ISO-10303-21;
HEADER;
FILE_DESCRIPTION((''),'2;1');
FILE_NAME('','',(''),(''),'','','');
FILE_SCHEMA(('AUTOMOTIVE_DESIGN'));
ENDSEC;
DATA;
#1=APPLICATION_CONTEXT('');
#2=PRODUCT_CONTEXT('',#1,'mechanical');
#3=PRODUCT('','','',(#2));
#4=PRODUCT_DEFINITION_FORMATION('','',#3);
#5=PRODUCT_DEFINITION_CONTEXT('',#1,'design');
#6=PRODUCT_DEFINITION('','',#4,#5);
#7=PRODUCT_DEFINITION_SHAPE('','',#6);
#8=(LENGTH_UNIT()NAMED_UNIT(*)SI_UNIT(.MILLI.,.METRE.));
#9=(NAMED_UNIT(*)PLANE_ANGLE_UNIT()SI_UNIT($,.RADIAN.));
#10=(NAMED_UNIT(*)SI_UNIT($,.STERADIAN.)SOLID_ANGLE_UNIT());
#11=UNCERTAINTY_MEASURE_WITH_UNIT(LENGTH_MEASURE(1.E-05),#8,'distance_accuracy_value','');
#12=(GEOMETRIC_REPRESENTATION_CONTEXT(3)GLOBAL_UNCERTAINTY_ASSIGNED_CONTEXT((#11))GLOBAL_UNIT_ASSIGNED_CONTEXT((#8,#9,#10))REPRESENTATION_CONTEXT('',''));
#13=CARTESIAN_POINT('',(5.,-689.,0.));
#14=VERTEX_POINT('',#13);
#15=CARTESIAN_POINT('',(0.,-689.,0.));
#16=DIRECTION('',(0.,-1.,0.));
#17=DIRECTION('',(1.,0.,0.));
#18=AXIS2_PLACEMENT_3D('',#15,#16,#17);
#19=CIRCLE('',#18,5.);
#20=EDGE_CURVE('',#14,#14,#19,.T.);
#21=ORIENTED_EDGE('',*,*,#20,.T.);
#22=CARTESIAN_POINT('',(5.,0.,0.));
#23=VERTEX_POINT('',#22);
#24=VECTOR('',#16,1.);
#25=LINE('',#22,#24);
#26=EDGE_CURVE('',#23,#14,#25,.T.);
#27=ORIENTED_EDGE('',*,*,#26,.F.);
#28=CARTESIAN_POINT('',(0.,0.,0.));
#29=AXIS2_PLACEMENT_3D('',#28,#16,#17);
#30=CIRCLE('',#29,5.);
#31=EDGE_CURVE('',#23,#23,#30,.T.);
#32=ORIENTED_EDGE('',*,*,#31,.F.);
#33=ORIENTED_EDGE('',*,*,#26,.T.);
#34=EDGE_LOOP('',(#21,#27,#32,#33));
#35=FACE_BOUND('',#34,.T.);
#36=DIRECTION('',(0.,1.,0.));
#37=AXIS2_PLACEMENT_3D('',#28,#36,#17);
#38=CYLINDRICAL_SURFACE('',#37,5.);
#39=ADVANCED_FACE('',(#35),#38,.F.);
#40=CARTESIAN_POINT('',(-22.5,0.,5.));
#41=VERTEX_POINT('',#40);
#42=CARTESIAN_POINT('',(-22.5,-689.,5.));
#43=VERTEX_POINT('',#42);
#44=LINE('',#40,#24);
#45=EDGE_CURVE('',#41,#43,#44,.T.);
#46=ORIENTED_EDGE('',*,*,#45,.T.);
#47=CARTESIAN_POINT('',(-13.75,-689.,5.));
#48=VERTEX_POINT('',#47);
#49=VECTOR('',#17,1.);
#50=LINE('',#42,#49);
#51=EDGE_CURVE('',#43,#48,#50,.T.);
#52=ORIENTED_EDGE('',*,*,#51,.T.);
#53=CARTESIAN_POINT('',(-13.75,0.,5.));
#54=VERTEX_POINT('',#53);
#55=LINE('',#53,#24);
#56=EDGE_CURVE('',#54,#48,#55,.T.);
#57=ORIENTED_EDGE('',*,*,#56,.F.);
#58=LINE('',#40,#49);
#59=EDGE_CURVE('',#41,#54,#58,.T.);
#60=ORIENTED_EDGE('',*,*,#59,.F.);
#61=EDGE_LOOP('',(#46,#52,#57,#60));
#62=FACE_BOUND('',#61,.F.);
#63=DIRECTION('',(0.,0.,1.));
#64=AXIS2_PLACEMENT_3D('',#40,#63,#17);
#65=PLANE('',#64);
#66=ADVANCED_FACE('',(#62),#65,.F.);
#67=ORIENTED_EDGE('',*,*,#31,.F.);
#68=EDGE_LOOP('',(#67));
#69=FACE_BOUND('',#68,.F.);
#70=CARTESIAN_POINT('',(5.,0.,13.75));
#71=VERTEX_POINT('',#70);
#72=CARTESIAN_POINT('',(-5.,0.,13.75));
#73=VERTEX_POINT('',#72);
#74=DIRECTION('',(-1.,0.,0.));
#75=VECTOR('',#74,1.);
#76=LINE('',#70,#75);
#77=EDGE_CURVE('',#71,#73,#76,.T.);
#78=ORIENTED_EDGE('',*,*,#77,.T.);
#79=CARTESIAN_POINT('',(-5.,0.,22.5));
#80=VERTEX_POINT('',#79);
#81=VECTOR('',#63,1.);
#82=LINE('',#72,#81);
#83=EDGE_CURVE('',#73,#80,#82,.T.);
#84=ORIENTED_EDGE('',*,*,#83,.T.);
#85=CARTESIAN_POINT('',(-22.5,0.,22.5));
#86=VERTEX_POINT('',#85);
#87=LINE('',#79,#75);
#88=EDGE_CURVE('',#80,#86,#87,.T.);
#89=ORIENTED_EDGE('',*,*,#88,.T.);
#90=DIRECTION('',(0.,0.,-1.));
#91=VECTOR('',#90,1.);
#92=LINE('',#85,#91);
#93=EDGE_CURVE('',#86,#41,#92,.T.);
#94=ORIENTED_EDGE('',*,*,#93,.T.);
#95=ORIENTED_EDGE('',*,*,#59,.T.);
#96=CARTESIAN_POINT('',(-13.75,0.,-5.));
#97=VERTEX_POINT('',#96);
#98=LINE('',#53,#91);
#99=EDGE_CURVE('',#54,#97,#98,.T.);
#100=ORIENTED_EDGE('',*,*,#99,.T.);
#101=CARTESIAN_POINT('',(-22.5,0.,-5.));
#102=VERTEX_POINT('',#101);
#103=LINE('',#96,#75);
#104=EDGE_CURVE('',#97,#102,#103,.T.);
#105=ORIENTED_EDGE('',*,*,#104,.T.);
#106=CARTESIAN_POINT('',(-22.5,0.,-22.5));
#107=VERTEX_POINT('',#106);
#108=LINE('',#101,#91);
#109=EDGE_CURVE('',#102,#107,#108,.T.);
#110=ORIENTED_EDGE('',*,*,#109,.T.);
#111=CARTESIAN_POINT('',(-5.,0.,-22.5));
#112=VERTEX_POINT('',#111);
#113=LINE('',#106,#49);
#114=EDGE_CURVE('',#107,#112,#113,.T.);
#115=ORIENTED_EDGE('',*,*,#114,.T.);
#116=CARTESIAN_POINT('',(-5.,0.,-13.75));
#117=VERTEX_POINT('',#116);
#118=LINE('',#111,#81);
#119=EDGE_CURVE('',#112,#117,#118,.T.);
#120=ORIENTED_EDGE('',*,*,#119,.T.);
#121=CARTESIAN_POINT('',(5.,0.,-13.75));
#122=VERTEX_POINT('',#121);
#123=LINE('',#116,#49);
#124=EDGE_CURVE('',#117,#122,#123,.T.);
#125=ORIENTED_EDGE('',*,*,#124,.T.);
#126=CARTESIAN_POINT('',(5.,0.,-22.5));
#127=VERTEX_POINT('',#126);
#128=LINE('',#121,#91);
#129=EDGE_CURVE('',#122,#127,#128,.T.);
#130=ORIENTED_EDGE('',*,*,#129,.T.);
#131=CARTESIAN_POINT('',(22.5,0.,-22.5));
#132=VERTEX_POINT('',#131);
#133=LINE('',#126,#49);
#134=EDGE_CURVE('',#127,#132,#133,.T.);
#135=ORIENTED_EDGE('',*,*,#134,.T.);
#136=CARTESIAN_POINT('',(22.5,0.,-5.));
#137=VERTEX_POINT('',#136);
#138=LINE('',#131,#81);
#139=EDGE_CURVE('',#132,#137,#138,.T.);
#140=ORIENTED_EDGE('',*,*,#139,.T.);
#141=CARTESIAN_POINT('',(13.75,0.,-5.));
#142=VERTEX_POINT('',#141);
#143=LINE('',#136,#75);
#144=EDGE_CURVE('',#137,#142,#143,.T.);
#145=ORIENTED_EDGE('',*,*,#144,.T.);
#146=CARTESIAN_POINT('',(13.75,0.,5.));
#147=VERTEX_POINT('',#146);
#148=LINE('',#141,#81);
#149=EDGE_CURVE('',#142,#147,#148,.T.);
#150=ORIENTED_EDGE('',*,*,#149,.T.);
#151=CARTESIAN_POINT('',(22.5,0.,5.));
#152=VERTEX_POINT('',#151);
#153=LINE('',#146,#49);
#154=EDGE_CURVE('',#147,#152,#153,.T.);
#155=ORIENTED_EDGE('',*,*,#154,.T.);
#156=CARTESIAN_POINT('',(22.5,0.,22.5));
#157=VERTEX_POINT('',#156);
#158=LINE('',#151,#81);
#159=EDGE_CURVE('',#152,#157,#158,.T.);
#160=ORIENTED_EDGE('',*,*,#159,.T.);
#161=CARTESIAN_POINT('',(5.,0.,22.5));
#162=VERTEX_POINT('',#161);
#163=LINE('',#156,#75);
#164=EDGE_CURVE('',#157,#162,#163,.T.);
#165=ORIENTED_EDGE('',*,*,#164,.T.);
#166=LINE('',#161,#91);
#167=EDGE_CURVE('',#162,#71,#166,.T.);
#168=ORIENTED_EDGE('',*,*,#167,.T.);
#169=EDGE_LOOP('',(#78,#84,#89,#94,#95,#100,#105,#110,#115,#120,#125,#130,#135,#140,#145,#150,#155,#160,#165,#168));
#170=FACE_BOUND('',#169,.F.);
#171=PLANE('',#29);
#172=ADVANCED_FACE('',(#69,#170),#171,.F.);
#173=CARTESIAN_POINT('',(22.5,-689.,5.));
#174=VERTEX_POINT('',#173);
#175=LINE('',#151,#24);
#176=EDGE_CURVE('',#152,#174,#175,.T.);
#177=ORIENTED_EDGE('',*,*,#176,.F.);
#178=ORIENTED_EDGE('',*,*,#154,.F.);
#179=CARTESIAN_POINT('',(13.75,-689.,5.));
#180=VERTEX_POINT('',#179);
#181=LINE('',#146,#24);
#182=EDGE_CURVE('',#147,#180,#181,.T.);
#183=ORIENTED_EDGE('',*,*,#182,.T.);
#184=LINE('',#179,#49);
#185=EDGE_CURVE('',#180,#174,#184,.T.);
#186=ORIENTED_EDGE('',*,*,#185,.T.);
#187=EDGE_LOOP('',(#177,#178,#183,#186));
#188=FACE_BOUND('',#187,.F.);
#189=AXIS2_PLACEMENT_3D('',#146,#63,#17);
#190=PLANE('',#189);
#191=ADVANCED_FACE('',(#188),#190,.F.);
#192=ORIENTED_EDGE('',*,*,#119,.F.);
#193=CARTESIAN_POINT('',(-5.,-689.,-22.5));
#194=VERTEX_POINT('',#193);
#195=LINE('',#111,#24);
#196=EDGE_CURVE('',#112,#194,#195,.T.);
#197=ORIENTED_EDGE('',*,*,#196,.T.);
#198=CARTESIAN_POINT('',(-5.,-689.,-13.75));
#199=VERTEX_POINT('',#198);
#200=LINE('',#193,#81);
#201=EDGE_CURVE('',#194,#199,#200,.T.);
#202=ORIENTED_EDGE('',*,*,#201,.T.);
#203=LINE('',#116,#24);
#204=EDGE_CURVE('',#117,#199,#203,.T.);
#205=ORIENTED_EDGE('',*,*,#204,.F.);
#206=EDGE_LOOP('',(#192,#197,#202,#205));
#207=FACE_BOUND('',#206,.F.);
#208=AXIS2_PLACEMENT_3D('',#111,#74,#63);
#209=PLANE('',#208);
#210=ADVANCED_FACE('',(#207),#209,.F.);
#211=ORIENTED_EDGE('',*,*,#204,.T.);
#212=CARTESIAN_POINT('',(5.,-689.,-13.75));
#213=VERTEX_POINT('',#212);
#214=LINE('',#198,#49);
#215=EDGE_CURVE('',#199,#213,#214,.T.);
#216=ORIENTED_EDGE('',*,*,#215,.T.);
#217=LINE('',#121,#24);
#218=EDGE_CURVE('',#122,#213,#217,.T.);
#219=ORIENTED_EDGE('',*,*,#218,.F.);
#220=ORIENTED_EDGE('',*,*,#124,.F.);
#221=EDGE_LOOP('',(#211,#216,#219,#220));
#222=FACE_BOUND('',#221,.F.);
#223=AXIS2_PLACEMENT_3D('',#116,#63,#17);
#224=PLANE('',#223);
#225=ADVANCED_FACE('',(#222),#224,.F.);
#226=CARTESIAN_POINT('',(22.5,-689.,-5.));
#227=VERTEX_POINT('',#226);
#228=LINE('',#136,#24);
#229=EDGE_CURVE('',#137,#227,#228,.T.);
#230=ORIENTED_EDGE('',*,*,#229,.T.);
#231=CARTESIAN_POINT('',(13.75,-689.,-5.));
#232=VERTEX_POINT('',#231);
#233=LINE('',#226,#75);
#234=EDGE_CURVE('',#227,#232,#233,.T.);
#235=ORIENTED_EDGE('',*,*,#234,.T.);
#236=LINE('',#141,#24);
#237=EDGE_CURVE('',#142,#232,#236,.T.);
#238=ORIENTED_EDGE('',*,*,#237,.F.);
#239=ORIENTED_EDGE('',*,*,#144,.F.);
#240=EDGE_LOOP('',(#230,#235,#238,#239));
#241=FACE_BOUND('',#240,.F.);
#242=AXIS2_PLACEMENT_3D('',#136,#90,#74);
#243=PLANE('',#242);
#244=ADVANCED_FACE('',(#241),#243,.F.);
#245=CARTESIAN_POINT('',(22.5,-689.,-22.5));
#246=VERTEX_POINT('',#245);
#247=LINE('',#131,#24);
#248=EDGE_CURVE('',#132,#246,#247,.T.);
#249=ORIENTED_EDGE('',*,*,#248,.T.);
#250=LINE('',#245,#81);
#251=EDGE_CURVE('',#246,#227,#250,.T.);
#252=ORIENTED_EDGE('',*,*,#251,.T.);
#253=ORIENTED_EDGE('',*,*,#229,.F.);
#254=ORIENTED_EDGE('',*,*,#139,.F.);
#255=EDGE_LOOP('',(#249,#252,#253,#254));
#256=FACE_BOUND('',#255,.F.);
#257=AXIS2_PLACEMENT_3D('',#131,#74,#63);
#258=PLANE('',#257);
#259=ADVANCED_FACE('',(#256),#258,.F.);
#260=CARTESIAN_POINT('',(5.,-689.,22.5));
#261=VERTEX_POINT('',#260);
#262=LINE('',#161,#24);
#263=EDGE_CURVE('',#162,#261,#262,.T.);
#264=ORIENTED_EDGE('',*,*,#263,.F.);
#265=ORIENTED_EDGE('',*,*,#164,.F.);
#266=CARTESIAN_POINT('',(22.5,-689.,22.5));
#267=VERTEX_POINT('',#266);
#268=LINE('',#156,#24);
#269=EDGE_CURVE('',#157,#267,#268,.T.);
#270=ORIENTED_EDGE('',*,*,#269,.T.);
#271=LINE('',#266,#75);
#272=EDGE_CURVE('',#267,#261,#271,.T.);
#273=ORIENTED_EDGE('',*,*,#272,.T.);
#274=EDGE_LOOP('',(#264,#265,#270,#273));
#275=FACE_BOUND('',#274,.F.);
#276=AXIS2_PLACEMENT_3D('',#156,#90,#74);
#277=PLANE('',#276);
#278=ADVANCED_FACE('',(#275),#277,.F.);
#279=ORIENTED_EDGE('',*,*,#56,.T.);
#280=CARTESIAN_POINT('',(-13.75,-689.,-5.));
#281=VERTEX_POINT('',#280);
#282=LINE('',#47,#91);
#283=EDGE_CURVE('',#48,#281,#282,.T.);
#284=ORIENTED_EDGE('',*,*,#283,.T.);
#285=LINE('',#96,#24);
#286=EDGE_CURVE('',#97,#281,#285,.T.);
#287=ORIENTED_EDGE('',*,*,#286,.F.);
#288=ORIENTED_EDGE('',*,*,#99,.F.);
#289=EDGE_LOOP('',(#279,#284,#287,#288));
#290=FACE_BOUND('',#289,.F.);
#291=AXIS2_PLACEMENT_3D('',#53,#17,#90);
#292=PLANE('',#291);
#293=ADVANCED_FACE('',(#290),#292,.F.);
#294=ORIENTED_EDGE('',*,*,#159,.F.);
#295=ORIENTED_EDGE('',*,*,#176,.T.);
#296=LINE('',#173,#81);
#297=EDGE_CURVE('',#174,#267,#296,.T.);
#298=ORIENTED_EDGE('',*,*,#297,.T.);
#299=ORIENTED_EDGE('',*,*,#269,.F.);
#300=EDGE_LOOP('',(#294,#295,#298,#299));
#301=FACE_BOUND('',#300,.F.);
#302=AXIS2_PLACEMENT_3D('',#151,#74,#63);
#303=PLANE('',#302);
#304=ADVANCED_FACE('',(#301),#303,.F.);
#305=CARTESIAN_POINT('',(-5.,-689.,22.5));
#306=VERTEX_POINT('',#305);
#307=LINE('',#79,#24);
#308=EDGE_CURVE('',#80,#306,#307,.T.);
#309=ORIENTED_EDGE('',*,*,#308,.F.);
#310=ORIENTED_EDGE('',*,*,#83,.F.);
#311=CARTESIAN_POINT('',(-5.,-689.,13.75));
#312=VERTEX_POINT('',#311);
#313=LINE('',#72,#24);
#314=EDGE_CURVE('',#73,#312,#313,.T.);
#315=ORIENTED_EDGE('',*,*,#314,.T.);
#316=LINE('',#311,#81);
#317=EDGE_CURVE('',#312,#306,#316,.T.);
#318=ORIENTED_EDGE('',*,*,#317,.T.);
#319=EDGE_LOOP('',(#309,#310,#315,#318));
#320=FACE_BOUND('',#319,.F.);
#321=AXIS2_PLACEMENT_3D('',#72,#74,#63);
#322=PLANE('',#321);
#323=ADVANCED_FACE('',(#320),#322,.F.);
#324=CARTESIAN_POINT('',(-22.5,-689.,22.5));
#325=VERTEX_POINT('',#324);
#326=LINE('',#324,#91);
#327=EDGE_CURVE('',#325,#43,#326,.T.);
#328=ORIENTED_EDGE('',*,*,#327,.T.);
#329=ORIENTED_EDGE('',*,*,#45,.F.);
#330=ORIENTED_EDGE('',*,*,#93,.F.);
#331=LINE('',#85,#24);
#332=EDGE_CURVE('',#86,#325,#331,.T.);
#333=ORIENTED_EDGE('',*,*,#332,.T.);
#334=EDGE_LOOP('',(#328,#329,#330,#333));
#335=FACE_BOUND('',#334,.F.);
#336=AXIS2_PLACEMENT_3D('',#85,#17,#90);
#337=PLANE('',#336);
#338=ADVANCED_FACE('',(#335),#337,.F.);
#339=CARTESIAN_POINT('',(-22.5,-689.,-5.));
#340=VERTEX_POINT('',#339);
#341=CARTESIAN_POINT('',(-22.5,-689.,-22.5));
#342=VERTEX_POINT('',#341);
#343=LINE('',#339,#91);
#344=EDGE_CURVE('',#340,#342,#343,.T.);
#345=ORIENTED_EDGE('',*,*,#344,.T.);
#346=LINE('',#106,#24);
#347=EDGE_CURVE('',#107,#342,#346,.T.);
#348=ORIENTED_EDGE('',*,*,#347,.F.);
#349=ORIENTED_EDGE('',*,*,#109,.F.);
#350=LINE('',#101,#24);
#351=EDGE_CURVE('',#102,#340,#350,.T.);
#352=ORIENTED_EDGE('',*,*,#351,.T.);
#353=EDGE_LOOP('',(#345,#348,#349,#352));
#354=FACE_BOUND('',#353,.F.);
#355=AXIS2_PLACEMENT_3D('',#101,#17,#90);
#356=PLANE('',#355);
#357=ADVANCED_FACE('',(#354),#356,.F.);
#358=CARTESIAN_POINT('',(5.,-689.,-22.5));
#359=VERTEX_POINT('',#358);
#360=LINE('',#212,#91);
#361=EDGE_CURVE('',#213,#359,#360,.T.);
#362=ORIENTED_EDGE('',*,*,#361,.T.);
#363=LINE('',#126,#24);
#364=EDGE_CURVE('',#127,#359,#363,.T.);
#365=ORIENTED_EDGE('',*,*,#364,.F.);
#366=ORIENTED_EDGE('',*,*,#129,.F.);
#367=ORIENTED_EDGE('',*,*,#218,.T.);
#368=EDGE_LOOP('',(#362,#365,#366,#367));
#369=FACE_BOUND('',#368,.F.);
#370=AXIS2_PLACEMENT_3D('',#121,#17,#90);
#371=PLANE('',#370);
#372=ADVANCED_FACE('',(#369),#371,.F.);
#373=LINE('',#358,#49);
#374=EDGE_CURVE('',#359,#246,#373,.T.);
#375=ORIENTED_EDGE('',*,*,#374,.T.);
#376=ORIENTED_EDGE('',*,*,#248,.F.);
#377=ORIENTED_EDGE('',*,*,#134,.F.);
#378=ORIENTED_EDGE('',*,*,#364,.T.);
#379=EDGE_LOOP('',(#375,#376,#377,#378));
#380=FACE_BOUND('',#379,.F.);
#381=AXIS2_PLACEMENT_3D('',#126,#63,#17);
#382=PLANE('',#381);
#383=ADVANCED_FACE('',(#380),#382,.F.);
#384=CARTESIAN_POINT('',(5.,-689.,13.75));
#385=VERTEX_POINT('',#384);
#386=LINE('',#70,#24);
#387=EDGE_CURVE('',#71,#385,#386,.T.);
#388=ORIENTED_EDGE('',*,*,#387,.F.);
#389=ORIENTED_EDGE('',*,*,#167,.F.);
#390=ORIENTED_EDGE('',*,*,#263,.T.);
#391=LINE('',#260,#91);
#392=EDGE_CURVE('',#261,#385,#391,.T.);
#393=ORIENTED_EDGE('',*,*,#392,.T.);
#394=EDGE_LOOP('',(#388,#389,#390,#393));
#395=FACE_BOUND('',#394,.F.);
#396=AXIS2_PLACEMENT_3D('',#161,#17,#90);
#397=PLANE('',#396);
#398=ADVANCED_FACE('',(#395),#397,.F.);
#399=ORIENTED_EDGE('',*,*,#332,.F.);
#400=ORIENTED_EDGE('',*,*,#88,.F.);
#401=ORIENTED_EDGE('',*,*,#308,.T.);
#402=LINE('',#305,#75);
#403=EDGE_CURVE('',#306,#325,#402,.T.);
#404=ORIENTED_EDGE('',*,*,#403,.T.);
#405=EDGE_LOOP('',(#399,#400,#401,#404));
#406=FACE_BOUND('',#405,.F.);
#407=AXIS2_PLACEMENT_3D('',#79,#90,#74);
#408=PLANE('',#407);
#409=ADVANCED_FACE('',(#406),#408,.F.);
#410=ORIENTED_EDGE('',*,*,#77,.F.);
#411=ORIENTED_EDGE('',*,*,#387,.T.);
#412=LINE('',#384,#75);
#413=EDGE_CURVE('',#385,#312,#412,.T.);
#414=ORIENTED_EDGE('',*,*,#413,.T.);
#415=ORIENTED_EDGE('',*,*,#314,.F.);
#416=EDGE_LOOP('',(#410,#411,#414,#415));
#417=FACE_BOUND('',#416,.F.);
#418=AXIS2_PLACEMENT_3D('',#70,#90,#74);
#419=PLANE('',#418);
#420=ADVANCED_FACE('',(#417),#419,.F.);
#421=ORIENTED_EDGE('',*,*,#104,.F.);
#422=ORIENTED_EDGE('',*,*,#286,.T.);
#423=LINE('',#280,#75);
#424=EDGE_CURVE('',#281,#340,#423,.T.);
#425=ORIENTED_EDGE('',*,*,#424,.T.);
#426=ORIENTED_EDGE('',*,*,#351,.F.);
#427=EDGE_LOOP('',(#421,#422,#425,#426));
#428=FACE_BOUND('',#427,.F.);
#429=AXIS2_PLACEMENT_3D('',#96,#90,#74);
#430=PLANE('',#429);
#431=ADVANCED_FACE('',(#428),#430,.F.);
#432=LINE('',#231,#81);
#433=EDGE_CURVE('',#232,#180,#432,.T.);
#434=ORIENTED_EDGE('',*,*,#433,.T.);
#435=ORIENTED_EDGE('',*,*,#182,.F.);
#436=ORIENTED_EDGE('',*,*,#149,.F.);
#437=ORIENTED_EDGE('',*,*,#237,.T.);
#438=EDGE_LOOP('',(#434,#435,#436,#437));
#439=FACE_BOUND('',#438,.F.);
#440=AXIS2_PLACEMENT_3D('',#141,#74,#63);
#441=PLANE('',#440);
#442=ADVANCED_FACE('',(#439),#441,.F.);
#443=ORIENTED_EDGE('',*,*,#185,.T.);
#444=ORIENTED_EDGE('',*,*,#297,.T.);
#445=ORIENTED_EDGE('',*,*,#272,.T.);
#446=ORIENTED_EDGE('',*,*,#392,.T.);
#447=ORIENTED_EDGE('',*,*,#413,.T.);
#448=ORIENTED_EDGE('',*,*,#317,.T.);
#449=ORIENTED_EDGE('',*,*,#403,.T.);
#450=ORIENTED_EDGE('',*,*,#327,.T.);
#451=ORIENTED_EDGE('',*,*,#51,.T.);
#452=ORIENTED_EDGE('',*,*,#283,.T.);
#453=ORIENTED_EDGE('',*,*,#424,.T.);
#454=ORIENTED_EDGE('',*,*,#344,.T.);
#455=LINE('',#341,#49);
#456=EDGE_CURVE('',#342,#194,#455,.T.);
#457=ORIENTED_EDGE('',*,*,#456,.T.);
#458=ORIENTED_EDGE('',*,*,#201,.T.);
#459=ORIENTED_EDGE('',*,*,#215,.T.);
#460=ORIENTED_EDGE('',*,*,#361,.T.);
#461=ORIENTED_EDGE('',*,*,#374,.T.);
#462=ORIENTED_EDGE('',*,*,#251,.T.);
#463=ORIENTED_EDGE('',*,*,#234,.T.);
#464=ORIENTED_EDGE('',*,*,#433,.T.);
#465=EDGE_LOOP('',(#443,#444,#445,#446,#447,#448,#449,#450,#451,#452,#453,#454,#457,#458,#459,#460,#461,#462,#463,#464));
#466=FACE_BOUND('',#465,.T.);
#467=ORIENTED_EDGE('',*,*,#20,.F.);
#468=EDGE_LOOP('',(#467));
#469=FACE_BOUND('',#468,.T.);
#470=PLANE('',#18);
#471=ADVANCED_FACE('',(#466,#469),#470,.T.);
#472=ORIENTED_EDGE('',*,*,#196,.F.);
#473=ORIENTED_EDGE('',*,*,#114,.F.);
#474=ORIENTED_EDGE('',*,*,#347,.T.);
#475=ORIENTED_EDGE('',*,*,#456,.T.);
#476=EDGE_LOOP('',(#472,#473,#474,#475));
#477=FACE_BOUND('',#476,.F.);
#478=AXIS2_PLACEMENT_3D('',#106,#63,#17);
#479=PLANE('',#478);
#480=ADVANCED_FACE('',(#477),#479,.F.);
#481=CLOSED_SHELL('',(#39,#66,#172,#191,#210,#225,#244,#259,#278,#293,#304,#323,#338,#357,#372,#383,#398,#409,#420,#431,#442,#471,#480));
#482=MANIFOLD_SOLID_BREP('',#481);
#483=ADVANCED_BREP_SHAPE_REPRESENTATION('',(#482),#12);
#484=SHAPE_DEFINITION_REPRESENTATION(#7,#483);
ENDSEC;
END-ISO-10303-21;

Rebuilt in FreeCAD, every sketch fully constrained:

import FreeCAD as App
import Part
import Sketcher
from FreeCAD import Vector
Q = App.Units.Quantity


def add_polygon(sketch, points):
    """Adds a closed chain of lines whose ends are joined by coincident constraints."""
    first, n = sketch.GeometryCount, len(points)
    for a, b in zip(points, points[1:] + points[:1]):
        sketch.addGeometry(Part.LineSegment(App.Vector(*a, 0), App.Vector(*b, 0)), False)
    for i in range(n):
        sketch.addConstraint(Sketcher.Constraint("Coincident", first + i, 2, first + (i + 1) % n, 1))

doc = App.newDocument("Part")
body = doc.addObject("PartDesign::Body", "Body")

# Sketch on XZ plane
sketch1 = doc.addObject("Sketcher::SketchObject", "Sketch")
body.addObject(sketch1)
sketch1.AttachmentSupport = (doc.XZ_Plane, [""])
sketch1.MapMode = "FlatFace"
add_polygon(sketch1, [(5, -22), (22, -22), (22, -5), (14, -5), (14, 5), (22, 5), (22, 22), (5, 22), (5, 14), (-5, 14), (-5, 22), (-22, 22), (-22, 5), (-14, 5), (-14, -5), (-22, -5), (-22, -22), (-5, -22), (-5, -14), (5, -14)])  # lines 0-19
sketch1.addGeometry(Part.Circle(Vector(0, 0, 0), Vector(0, 0, 1), 5), False)  # 20
sketch1.addConstraint(Sketcher.Constraint("Horizontal", 0))
sketch1.addConstraint(Sketcher.Constraint("Vertical", 1))
sketch1.addConstraint(Sketcher.Constraint("Horizontal", 2))
sketch1.addConstraint(Sketcher.Constraint("Vertical", 3))
sketch1.addConstraint(Sketcher.Constraint("Horizontal", 4))
sketch1.addConstraint(Sketcher.Constraint("Vertical", 5))
sketch1.addConstraint(Sketcher.Constraint("Horizontal", 6))
sketch1.addConstraint(Sketcher.Constraint("Vertical", 7))
sketch1.addConstraint(Sketcher.Constraint("Horizontal", 8))
sketch1.addConstraint(Sketcher.Constraint("Vertical", 9))
sketch1.addConstraint(Sketcher.Constraint("Horizontal", 10))
sketch1.addConstraint(Sketcher.Constraint("Vertical", 11))
sketch1.addConstraint(Sketcher.Constraint("Horizontal", 12))
sketch1.addConstraint(Sketcher.Constraint("Vertical", 13))
sketch1.addConstraint(Sketcher.Constraint("Horizontal", 14))
sketch1.addConstraint(Sketcher.Constraint("Vertical", 15))
sketch1.addConstraint(Sketcher.Constraint("Horizontal", 16))
sketch1.addConstraint(Sketcher.Constraint("Vertical", 17))
sketch1.addConstraint(Sketcher.Constraint("Horizontal", 18))
sketch1.addConstraint(Sketcher.Constraint("Vertical", 19))
sketch1.addConstraint(Sketcher.Constraint("Coincident", 20, 3, -1, 1))
sketch1.addConstraint(Sketcher.Constraint("Symmetric", 0, 2, 10, 2, -1, 1))
sketch1.addConstraint(Sketcher.Constraint("Symmetric", 2, 2, 12, 2, -1, 1))
sketch1.addConstraint(Sketcher.Constraint("Symmetric", 4, 2, 14, 2, -1, 1))
sketch1.addConstraint(Sketcher.Constraint("Symmetric", 6, 2, 16, 2, -1, 1))
sketch1.addConstraint(Sketcher.Constraint("Symmetric", 8, 2, 18, 2, -1, 1))
sketch1.addConstraint(Sketcher.Constraint("Symmetric", 6, 2, 9, 2, -2))
sketch1.addConstraint(Sketcher.Constraint("Symmetric", 4, 2, 11, 2, -2))
sketch1.addConstraint(Sketcher.Constraint("Equal", 16, 1))
sketch1.addConstraint(Sketcher.Constraint("Equal", 18, 3))
sketch1.addConstraint(Sketcher.Constraint("Equal", 14, 7))
sketch1.addConstraint(Sketcher.Constraint("Diameter", 20, Q("10 mm")))
sketch1.addConstraint(Sketcher.Constraint("DistanceX", 8, 2, 8, 1, Q("10 mm")))
sketch1.addConstraint(Sketcher.Constraint("DistanceX", 0, 1, 0, 2, Q("17.5 mm")))
sketch1.addConstraint(Sketcher.Constraint("DistanceX", 2, 2, 2, 1, Q("8.75 mm")))
pad1 = doc.addObject("PartDesign::Pad", "Pad")
body.addObject(pad1)
pad1.Profile = sketch1
pad1.Length = 689

doc.recompute()
